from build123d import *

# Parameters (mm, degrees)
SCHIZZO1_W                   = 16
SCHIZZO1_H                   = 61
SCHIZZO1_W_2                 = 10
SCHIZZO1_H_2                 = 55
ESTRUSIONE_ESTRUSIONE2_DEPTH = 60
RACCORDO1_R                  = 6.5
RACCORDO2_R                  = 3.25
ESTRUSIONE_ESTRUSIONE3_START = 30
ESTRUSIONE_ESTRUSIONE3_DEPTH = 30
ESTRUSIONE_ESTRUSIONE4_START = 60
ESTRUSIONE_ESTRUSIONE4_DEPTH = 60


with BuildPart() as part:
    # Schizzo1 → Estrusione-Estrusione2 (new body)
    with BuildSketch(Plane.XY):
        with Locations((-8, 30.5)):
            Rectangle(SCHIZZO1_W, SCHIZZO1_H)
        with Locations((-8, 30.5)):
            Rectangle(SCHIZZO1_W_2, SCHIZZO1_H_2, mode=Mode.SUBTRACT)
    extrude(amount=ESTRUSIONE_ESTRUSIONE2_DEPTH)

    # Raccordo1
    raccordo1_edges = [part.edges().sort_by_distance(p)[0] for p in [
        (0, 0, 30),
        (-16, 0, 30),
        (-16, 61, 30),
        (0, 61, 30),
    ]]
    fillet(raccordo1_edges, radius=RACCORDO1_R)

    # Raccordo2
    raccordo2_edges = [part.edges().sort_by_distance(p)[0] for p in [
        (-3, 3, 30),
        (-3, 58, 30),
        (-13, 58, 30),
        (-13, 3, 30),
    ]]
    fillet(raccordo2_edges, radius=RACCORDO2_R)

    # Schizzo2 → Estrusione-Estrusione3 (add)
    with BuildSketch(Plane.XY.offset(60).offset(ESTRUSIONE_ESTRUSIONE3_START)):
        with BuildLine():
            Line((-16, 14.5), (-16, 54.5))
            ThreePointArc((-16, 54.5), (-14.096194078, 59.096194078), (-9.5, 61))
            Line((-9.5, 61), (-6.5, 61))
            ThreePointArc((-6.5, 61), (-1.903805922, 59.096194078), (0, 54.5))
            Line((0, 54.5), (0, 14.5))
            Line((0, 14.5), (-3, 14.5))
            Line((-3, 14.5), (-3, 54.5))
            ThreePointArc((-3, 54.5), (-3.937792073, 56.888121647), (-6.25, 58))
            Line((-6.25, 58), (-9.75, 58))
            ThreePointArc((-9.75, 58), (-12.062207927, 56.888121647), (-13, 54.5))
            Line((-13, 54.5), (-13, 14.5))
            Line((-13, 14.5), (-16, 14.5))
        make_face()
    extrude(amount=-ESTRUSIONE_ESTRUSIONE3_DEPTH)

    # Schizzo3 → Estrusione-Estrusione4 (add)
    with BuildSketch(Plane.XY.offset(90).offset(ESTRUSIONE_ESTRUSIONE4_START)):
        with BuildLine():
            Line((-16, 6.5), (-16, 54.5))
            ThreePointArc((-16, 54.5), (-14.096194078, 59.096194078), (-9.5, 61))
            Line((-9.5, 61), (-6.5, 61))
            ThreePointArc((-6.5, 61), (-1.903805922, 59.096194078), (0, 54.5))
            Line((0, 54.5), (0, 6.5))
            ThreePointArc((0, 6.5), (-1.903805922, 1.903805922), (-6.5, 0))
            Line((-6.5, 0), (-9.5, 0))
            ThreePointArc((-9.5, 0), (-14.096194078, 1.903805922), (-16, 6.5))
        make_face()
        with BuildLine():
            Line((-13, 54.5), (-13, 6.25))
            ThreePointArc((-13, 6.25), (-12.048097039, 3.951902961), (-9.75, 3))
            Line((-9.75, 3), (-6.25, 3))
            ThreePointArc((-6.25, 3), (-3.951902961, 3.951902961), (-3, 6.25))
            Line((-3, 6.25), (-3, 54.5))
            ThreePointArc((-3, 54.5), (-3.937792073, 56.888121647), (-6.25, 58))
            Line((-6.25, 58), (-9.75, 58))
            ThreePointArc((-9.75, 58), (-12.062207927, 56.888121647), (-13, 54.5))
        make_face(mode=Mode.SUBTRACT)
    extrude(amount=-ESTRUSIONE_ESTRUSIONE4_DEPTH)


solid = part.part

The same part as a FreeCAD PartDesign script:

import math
import FreeCAD as App
import Part
import Sketcher
from FreeCAD import Vector
Q = App.Units.Quantity


def edges_at(feature, points):
    """Names of the edges that pass closest to the given points."""
    edges = feature.Shape.Edges
    near = lambda p: min(range(len(edges)), key=lambda i: edges[i].distToShape(Part.Vertex(*p))[0])
    return sorted({f"Edge{near(p) + 1}" for p in points})


def add_polygon(sketch, points):
    """Adds a closed chain of lines whose ends are joined by coincident constraints."""
    first, n = sketch.GeometryCount, len(points)
    for a, b in zip(points, points[1:] + points[:1]):
        sketch.addGeometry(Part.LineSegment(App.Vector(*a, 0), App.Vector(*b, 0)), False)
    for i in range(n):
        sketch.addConstraint(Sketcher.Constraint("Coincident", first + i, 2, first + (i + 1) % n, 1))

doc = App.newDocument("Part")
body = doc.addObject("PartDesign::Body", "Body")

sketch1 = body.newObject("Sketcher::SketchObject", "Sketch")
sketch1.AttachmentSupport = (doc.getObject("XY_Plane"), [""])
sketch1.MapMode = "FlatFace"
add_polygon(sketch1, [(-16, 61), (-16, 0), (0, 0), (0, 61)])
add_polygon(sketch1, [(-3, 3), (-13, 3), (-13, 58), (-3, 58)])
sketch1.addConstraint(Sketcher.Constraint("Vertical", 0))
sketch1.addConstraint(Sketcher.Constraint("Horizontal", 1))
sketch1.addConstraint(Sketcher.Constraint("Vertical", 2))
sketch1.addConstraint(Sketcher.Constraint("Horizontal", 3))
sketch1.addConstraint(Sketcher.Constraint("Horizontal", 4))
sketch1.addConstraint(Sketcher.Constraint("Vertical", 5))
sketch1.addConstraint(Sketcher.Constraint("Horizontal", 6))
sketch1.addConstraint(Sketcher.Constraint("Vertical", 7))
sketch1.addConstraint(Sketcher.Constraint("Coincident", 1, 2, -1, 1))
sketch1.addConstraint(Sketcher.Constraint("DistanceX", 1, 1, 1, 2, Q("16 mm")))
sketch1.addConstraint(Sketcher.Constraint("DistanceX", 4, 2, 4, 1, Q("10 mm")))
sketch1.addConstraint(Sketcher.Constraint("DistanceY", 0, 2, 0, 1, Q("61 mm")))
sketch1.addConstraint(Sketcher.Constraint("DistanceY", 5, 1, 5, 2, Q("55 mm")))
sketch1.addConstraint(Sketcher.Constraint("DistanceX", 4, 2, -1, 1, Q("13 mm")))
sketch1.addConstraint(Sketcher.Constraint("DistanceY", -1, 1, 4, 2, Q("3 mm")))
pad1 = body.newObject("PartDesign::Pad", "Pad")
pad1.Profile = sketch1
pad1.Length = 60
doc.recompute()

fillet = body.newObject("PartDesign::Fillet", "Fillet")
fillet.Base = (pad1, edges_at(pad1, [
    (0, 0, 30),
    (-16, 0, 30),
    (-16, 61, 30),
    (0, 61, 30),
]))
fillet.Radius = 6.5
doc.recompute()

fillet2 = body.newObject("PartDesign::Fillet", "Fillet001")
fillet2.Base = (fillet, edges_at(fillet, [
    (-3, 3, 30),
    (-3, 58, 30),
    (-13, 58, 30),
    (-13, 3, 30),
]))
fillet2.Radius = 3.25

sketch2 = body.newObject("Sketcher::SketchObject", "Sketch001")
sketch2.AttachmentSupport = (doc.getObject("XY_Plane"), [""])
sketch2.MapMode = "FlatFace"
sketch2.AttachmentOffset = App.Placement(Vector(0, 0, 90), App.Rotation())
sketch2.addGeometry(Part.LineSegment(Vector(-16, 54.5, 0), Vector(-16, 14.5, 0)), False)
sketch2.addGeometry(Part.LineSegment(Vector(-16, 14.5, 0), Vector(-13, 14.5, 0)), False)
sketch2.addGeometry(Part.LineSegment(Vector(-13, 14.5, 0), Vector(-13, 54.5, 0)), False)
sketch2.addGeometry(Part.ArcOfCircle(Part.Circle(Vector(-9.5, 54.5, 0), Vector(0, 0, 1), 3.5), math.radians(94), math.radians(180)), False)
sketch2.addGeometry(Part.LineSegment(Vector(-9.8, 58, 0), Vector(-6.2, 58, 0)), False)
sketch2.addGeometry(Part.ArcOfCircle(Part.Circle(Vector(-6.5, 54.5, 0), Vector(0, 0, 1), 3.5), math.radians(0), math.radians(86)), False)
sketch2.addGeometry(Part.LineSegment(Vector(-3, 54.5, 0), Vector(-3, 14.5, 0)), False)
sketch2.addGeometry(Part.LineSegment(Vector(-3, 14.5, 0), Vector(0, 14.5, 0)), False)
sketch2.addGeometry(Part.LineSegment(Vector(0, 14.5, 0), Vector(0, 54.5, 0)), False)
sketch2.addGeometry(Part.ArcOfCircle(Part.Circle(Vector(-6.5, 54.5, 0), Vector(0, 0, 1), 6.5), math.radians(0), math.radians(90)), False)
sketch2.addGeometry(Part.LineSegment(Vector(-6.5, 61, 0), Vector(-9.5, 61, 0)), False)
sketch2.addGeometry(Part.ArcOfCircle(Part.Circle(Vector(-9.5, 54.5, 0), Vector(0, 0, 1), 6.5), math.radians(90), math.radians(180)), False)
sketch2.addConstraint(Sketcher.Constraint("Coincident", 0, 2, 1, 1))
sketch2.addConstraint(Sketcher.Constraint("Coincident", 1, 2, 2, 1))
sketch2.addConstraint(Sketcher.Constraint("Tangent", 2, 2, 3, 2))
sketch2.addConstraint(Sketcher.Constraint("Coincident", 3, 1, 4, 1))
sketch2.addConstraint(Sketcher.Constraint("Coincident", 4, 2, 5, 2))
sketch2.addConstraint(Sketcher.Constraint("Tangent", 5, 1, 6, 1))
sketch2.addConstraint(Sketcher.Constraint("Coincident", 6, 2, 7, 1))
sketch2.addConstraint(Sketcher.Constraint("Coincident", 7, 2, 8, 1))
sketch2.addConstraint(Sketcher.Constraint("Tangent", 8, 2, 9, 1))
sketch2.addConstraint(Sketcher.Constraint("Tangent", 9, 2, 10, 1))
sketch2.addConstraint(Sketcher.Constraint("Tangent", 10, 2, 11, 1))
sketch2.addConstraint(Sketcher.Constraint("Tangent", 11, 2, 0, 1))
sketch2.addConstraint(Sketcher.Constraint("Vertical", 0))
sketch2.addConstraint(Sketcher.Constraint("Horizontal", 1))
sketch2.addConstraint(Sketcher.Constraint("Vertical", 2))
sketch2.addConstraint(Sketcher.Constraint("Horizontal", 4))
sketch2.addConstraint(Sketcher.Constraint("Vertical", 6))
sketch2.addConstraint(Sketcher.Constraint("Horizontal", 7))
sketch2.addConstraint(Sketcher.Constraint("Vertical", 8))
sketch2.addConstraint(Sketcher.Constraint("Horizontal", 10))
sketch2.addConstraint(Sketcher.Constraint("Equal", 3, 5))
sketch2.addConstraint(Sketcher.Constraint("Equal", 9, 11))
sketch2.addConstraint(Sketcher.Constraint("PointOnObject", 7, 2, -2))
sketch2.addConstraint(Sketcher.Constraint("Horizontal", 3, 3, 5, 3))
sketch2.addConstraint(Sketcher.Constraint("Horizontal", 5, 3, 9, 3))
sketch2.addConstraint(Sketcher.Constraint("Horizontal", 1, 2, 6, 2))
sketch2.addConstraint(Sketcher.Constraint("Equal", 1, 7))
sketch2.addConstraint(Sketcher.Constraint("Equal", 7, 10))
sketch2.addConstraint(Sketcher.Constraint("Radius", 9, Q("6.5 mm")))
sketch2.addConstraint(Sketcher.Constraint("DistanceX", 1, 1, 1, 2, Q("3 mm")))
sketch2.addConstraint(Sketcher.Constraint("DistanceY", 0, 2, 0, 1, Q("40 mm")))
sketch2.addConstraint(Sketcher.Constraint("DistanceX", 4, 1, 4, 2, Q("3.5 mm")))
sketch2.addConstraint(Sketcher.Constraint("DistanceY", -1, 1, 3, 1, Q("58 mm")))
sketch2.addConstraint(Sketcher.Constraint("DistanceY", -1, 1, 9, 2, Q("61 mm")))
pad2 = body.newObject("PartDesign::Pad", "Pad001")
pad2.Profile = sketch2
pad2.Length = 30
pad2.Reversed = True

sketch3 = body.newObject("Sketcher::SketchObject", "Sketch002")
sketch3.AttachmentSupport = (doc.getObject("XY_Plane"), [""])
sketch3.MapMode = "FlatFace"
sketch3.AttachmentOffset = App.Placement(Vector(0, 0, 150), App.Rotation())
sketch3.addGeometry(Part.LineSegment(Vector(-16, 54.5, 0), Vector(-16, 6.5, 0)), False)
sketch3.addGeometry(Part.ArcOfCircle(Part.Circle(Vector(-9.5, 6.5, 0), Vector(0, 0, 1), 6.5), math.radians(180), math.radians(270)), False)
sketch3.addGeometry(Part.LineSegment(Vector(-9.5, 0, 0), Vector(-6.5, 0, 0)), False)
sketch3.addGeometry(Part.ArcOfCircle(Part.Circle(Vector(-6.5, 6.5, 0), Vector(0, 0, 1), 6.5), math.radians(-90), math.radians(0)), False)
sketch3.addGeometry(Part.LineSegment(Vector(0, 6.5, 0), Vector(0, 54.5, 0)), False)
sketch3.addGeometry(Part.ArcOfCircle(Part.Circle(Vector(-6.5, 54.5, 0), Vector(0, 0, 1), 6.5), math.radians(0), math.radians(90)), False)
sketch3.addGeometry(Part.LineSegment(Vector(-6.5, 61, 0), Vector(-9.5, 61, 0)), False)
sketch3.addGeometry(Part.ArcOfCircle(Part.Circle(Vector(-9.5, 54.5, 0), Vector(0, 0, 1), 6.5), math.radians(90), math.radians(180)), False)
sketch3.addGeometry(Part.ArcOfCircle(Part.Circle(Vector(-9.5, 54.5, 0), Vector(0, 0, 1), 3.5), math.radians(94), math.radians(180)), False)
sketch3.addGeometry(Part.LineSegment(Vector(-9.8, 58, 0), Vector(-6.2, 58, 0)), False)
sketch3.addGeometry(Part.ArcOfCircle(Part.Circle(Vector(-6.5, 54.5, 0), Vector(0, 0, 1), 3.5), math.radians(0), math.radians(86)), False)
sketch3.addGeometry(Part.LineSegment(Vector(-3, 54.5, 0), Vector(-3, 6.2, 0)), False)
sketch3.addGeometry(Part.ArcOfCircle(Part.Circle(Vector(-6.2, 6.2, 0), Vector(0, 0, 1), 3.2), math.radians(-90), math.radians(0)), False)
sketch3.addGeometry(Part.LineSegment(Vector(-6.2, 3, 0), Vector(-9.8, 3, 0)), False)
sketch3.addGeometry(Part.ArcOfCircle(Part.Circle(Vector(-9.8, 6.2, 0), Vector(0, 0, 1), 3.2), math.radians(180), math.radians(270)), False)
sketch3.addGeometry(Part.LineSegment(Vector(-13, 6.2, 0), Vector(-13, 54.5, 0)), False)
sketch3.addConstraint(Sketcher.Constraint("Tangent", 0, 2, 1, 1))
sketch3.addConstraint(Sketcher.Constraint("Tangent", 1, 2, 2, 1))
sketch3.addConstraint(Sketcher.Constraint("Tangent", 2, 2, 3, 1))
sketch3.addConstraint(Sketcher.Constraint("Tangent", 3, 2, 4, 1))
sketch3.addConstraint(Sketcher.Constraint("Tangent", 4, 2, 5, 1))
sketch3.addConstraint(Sketcher.Constraint("Tangent", 5, 2, 6, 1))
sketch3.addConstraint(Sketcher.Constraint("Tangent", 6, 2, 7, 1))
sketch3.addConstraint(Sketcher.Constraint("Tangent", 7, 2, 0, 1))
sketch3.addConstraint(Sketcher.Constraint("Coincident", 8, 1, 9, 1))
sketch3.addConstraint(Sketcher.Constraint("Coincident", 9, 2, 10, 2))
sketch3.addConstraint(Sketcher.Constraint("Tangent", 10, 1, 11, 1))
sketch3.addConstraint(Sketcher.Constraint("Tangent", 11, 2, 12, 2))
sketch3.addConstraint(Sketcher.Constraint("Tangent", 12, 1, 13, 1))
sketch3.addConstraint(Sketcher.Constraint("Tangent", 13, 2, 14, 2))
sketch3.addConstraint(Sketcher.Constraint("Tangent", 14, 1, 15, 1))
sketch3.addConstraint(Sketcher.Constraint("Tangent", 15, 2, 8, 2))
sketch3.addConstraint(Sketcher.Constraint("Vertical", 0))
sketch3.addConstraint(Sketcher.Constraint("Horizontal", 2))
sketch3.addConstraint(Sketcher.Constraint("Vertical", 4))
sketch3.addConstraint(Sketcher.Constraint("Horizontal", 6))
sketch3.addConstraint(Sketcher.Constraint("Horizontal", 9))
sketch3.addConstraint(Sketcher.Constraint("Vertical", 11))
sketch3.addConstraint(Sketcher.Constraint("Horizontal", 13))
sketch3.addConstraint(Sketcher.Constraint("Vertical", 15))
sketch3.addConstraint(Sketcher.Constraint("Equal", 1, 3))
sketch3.addConstraint(Sketcher.Constraint("Equal", 3, 5))
sketch3.addConstraint(Sketcher.Constraint("Equal", 5, 7))
sketch3.addConstraint(Sketcher.Constraint("Equal", 8, 10))
sketch3.addConstraint(Sketcher.Constraint("Equal", 12, 14))
sketch3.addConstraint(Sketcher.Constraint("PointOnObject", 1, 2, -1))
sketch3.addConstraint(Sketcher.Constraint("PointOnObject", 3, 2, -2))
sketch3.addConstraint(Sketcher.Constraint("Horizontal", 7, 3, 8, 3))
sketch3.addConstraint(Sketcher.Constraint("Horizontal", 8, 3, 10, 3))
sketch3.addConstraint(Sketcher.Constraint("Vertical", 14, 3, 8, 1))
sketch3.addConstraint(Sketcher.Constraint("Radius", 1, Q("6.5 mm")))
sketch3.addConstraint(Sketcher.Constraint("DistanceX", 2, 1, 2, 2, Q("3 mm")))
sketch3.addConstraint(Sketcher.Constraint("DistanceY", 0, 2, 0, 1, Q("48 mm")))
sketch3.addConstraint(Sketcher.Constraint("Radius", 12, Q("3.25 mm")))
sketch3.addConstraint(Sketcher.Constraint("DistanceX", 9, 1, 9, 2, Q("3.5 mm")))
sketch3.addConstraint(Sketcher.Constraint("DistanceY", -1, 1, 8, 1, Q("58 mm")))
sketch3.addConstraint(Sketcher.Constraint("DistanceX", 10, 1, -1, 1, Q("3 mm")))
sketch3.addConstraint(Sketcher.Constraint("DistanceY", -1, 1, 12, 1, Q("3 mm")))
pad3 = body.newObject("PartDesign::Pad", "Pad002")
pad3.Profile = sketch3
pad3.Length = 60
pad3.Reversed = True

doc.recompute()
